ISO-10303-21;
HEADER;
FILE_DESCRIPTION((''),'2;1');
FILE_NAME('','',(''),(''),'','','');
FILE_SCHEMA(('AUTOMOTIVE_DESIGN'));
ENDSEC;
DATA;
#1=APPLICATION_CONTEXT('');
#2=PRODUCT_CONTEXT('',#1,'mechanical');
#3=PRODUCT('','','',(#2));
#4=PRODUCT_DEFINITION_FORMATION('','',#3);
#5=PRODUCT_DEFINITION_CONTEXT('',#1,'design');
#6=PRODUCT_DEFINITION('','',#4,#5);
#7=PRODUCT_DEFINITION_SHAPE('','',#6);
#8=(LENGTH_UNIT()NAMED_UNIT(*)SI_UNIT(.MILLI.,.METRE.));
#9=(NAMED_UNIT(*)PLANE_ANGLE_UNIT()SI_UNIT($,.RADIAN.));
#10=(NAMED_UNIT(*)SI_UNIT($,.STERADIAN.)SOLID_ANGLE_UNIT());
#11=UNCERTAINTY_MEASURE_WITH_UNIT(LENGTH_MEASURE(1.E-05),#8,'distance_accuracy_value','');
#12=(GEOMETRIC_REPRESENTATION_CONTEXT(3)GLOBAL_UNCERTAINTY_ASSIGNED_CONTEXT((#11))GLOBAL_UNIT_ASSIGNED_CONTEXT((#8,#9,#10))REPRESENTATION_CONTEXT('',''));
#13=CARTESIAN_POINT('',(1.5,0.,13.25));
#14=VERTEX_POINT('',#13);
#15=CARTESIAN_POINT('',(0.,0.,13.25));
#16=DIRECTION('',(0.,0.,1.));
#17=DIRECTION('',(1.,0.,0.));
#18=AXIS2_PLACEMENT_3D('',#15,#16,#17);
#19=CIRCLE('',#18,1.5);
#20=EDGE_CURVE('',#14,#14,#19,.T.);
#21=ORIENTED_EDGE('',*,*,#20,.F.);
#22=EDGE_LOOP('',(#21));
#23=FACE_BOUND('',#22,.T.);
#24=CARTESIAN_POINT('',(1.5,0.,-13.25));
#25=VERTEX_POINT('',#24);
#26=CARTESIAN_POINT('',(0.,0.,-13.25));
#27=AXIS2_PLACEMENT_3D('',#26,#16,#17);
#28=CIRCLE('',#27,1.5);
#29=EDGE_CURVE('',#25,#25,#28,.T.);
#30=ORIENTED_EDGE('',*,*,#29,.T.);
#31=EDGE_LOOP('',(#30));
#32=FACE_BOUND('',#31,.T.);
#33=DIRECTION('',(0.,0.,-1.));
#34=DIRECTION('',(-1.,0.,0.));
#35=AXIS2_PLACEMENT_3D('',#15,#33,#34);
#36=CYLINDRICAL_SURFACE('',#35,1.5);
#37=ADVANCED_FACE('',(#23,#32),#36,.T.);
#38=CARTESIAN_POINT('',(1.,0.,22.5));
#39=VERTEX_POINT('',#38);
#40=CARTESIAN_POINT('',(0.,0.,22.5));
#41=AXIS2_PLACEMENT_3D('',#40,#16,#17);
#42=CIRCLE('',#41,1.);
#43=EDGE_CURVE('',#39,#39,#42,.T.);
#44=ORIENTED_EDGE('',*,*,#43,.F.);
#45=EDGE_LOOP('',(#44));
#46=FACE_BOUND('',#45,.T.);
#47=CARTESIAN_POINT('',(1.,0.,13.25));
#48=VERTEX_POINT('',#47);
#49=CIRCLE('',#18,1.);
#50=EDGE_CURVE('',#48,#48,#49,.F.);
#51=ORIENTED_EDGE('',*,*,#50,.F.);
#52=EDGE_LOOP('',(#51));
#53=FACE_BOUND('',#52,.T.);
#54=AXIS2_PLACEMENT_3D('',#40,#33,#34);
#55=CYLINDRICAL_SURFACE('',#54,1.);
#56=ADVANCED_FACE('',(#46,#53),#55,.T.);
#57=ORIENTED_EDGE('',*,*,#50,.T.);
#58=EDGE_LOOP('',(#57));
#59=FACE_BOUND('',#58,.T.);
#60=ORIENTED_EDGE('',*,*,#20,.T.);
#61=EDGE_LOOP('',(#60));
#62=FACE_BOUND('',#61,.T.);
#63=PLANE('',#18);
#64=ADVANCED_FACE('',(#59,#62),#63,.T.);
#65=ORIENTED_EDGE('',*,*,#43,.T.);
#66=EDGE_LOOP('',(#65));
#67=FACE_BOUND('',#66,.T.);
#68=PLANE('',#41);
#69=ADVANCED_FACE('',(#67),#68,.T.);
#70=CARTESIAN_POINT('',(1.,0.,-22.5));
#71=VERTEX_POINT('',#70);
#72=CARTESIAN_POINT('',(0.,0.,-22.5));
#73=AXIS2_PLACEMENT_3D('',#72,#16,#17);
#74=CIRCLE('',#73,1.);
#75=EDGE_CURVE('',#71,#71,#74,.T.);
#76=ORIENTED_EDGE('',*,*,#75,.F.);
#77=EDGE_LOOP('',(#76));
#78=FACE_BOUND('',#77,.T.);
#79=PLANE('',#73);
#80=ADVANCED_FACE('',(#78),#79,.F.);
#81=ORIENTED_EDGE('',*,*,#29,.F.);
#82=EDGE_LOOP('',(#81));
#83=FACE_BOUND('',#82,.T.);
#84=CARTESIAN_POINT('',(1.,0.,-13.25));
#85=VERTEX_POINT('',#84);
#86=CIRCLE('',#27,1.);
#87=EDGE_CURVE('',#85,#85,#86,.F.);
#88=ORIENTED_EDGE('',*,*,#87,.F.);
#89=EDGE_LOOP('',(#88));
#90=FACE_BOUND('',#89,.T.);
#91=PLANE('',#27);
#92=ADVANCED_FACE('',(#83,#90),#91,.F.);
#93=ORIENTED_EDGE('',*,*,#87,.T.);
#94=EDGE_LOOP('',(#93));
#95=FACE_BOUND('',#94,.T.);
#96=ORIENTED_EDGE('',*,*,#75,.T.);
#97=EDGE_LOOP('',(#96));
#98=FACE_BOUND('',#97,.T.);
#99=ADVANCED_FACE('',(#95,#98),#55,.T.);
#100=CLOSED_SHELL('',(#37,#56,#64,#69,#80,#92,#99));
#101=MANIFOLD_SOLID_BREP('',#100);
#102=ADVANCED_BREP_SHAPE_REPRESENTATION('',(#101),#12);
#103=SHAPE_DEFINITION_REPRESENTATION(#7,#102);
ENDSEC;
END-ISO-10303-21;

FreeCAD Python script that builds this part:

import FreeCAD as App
import Part
import Sketcher
from FreeCAD import Vector

doc = App.newDocument("Part")
body = doc.addObject("PartDesign::Body", "Body")

# Sketch on XY plane
sketch1 = body.newObject("Sketcher::SketchObject", "Sketch")
sketch1.AttachmentSupport = (doc.getObject("XY_Plane"), [""])
sketch1.MapMode = "FlatFace"
sketch1.addGeometry(Part.Circle(Vector(0, 0, 0), Vector(0, 0, 1), 1.5), False)
sketch1.addConstraint(Sketcher.Constraint("Coincident", 0, 3, -1, 1))
sketch1.addConstraint(Sketcher.Constraint("Diameter", 0, 3.0))
pad1 = body.newObject("PartDesign::Pad", "Pad")
pad1.Profile = sketch1
pad1.Length = 26.5
pad1.Midplane = True

# Sketch on XY plane
sketch2 = body.newObject("Sketcher::SketchObject", "Sketch001")
sketch2.AttachmentSupport = (doc.getObject("XY_Plane"), [""])
sketch2.MapMode = "FlatFace"
sketch2.addGeometry(Part.Circle(Vector(0, 0, 0), Vector(0, 0, 1), 1), False)
sketch2.addConstraint(Sketcher.Constraint("Coincident", 0, 3, -1, 1))
sketch2.addConstraint(Sketcher.Constraint("Diameter", 0, 2.0))
pad2 = body.newObject("PartDesign::Pad", "Pad001")
pad2.Profile = sketch2
pad2.Length = 45
pad2.Midplane = True

doc.recompute()
